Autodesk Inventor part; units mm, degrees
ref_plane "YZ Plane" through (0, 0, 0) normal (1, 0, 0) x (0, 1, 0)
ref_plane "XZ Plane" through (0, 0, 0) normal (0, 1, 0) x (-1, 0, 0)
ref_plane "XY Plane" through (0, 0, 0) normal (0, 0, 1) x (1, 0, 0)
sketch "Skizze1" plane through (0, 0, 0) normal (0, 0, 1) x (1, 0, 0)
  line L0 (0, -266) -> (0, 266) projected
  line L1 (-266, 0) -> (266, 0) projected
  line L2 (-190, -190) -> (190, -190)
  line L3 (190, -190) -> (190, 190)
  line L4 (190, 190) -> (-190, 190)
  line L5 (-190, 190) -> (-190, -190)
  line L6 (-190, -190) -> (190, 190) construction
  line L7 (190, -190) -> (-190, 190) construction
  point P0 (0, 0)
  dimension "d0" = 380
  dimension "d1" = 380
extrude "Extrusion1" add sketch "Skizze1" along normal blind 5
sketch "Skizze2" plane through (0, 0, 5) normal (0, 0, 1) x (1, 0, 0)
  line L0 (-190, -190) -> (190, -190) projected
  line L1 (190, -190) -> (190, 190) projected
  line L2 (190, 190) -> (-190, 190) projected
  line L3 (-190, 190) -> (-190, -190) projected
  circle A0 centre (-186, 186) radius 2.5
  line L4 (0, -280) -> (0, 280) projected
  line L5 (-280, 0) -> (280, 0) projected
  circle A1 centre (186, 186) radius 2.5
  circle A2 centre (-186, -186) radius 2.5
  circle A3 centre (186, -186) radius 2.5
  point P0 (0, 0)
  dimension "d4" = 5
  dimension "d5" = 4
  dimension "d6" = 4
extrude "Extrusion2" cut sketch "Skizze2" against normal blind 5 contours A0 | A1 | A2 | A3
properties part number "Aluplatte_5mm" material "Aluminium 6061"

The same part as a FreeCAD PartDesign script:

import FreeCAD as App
import Part
import Sketcher
from FreeCAD import Vector
Q = App.Units.Quantity


def add_polygon(sketch, points):
    """Adds a closed chain of lines whose ends are joined by coincident constraints."""
    first, n = sketch.GeometryCount, len(points)
    for a, b in zip(points, points[1:] + points[:1]):
        sketch.addGeometry(Part.LineSegment(App.Vector(*a, 0), App.Vector(*b, 0)), False)
    for i in range(n):
        sketch.addConstraint(Sketcher.Constraint("Coincident", first + i, 2, first + (i + 1) % n, 1))

doc = App.newDocument("Part")
params = doc.addObject("Spreadsheet::Sheet", "Params")
for row, (alias, value) in enumerate([
    ("sketch1_width", "380 mm"),
    ("pad1_length", "5 mm"),
    ("sketch2_diameter", "5 mm"),
    ("pocket1_length", "5 mm"),
], start=1):
    params.set(f"A{row}", alias)
    params.set(f"B{row}", "=" + value)
    params.setAlias(f"B{row}", alias)

body = doc.addObject("PartDesign::Body", "Body")

# Sketch on XY plane
sketch1 = body.newObject("Sketcher::SketchObject", "Sketch")
sketch1.AttachmentSupport = (doc.getObject("XY_Plane"), [""])
sketch1.MapMode = "FlatFace"
add_polygon(sketch1, [(-190, -190), (190, -190), (190, 190), (-190, 190)])  # lines 0-3
sketch1.addConstraint([
    Sketcher.Constraint("Horizontal", 0),
    Sketcher.Constraint("Vertical", 1),
    Sketcher.Constraint("Horizontal", 2),
    Sketcher.Constraint("Vertical", 3),
    Sketcher.Constraint("Symmetric", 0, 2, 2, 2, -1, 1),
    Sketcher.Constraint("Equal", 2, 1),
    Sketcher.Constraint("DistanceX", 0, 1, 0, 2, Q("380 mm")),
])
sketch1.setExpression("Constraints[10]", "Params.sketch1_width")
pad1 = body.newObject("PartDesign::Pad", "Pad")
pad1.Profile = sketch1
pad1.setExpression("Length", "Params.pad1_length")

# Sketch on XY plane
sketch2 = body.newObject("Sketcher::SketchObject", "Sketch001")
sketch2.AttachmentSupport = (doc.getObject("XY_Plane"), [""])
sketch2.MapMode = "FlatFace"
sketch2.AttachmentOffset = App.Placement(Vector(0, 0, 5), App.Rotation())
sketch2.addGeometry([
    Part.Circle(Vector(-186, 186, 0), Vector(0, 0, 1), 2.5),
    Part.Circle(Vector(186, 186, 0), Vector(0, 0, 1), 2.5),
    Part.Circle(Vector(-186, -186, 0), Vector(0, 0, 1), 2.5),
    Part.Circle(Vector(186, -186, 0), Vector(0, 0, 1), 2.5),
], False)
sketch2.addConstraint([
    Sketcher.Constraint("Equal", 0, 1),
    Sketcher.Constraint("Equal", 1, 2),
    Sketcher.Constraint("Equal", 2, 3),
    Sketcher.Constraint("Symmetric", 1, 3, 2, 3, -1, 1),
    Sketcher.Constraint("Symmetric", 0, 3, 3, 3, -1, 1),
    Sketcher.Constraint("Symmetric", 0, 3, 1, 3, -2),
    Sketcher.Constraint("Diameter", 0, Q("5 mm")),
    Sketcher.Constraint("DistanceX", 0, 3, -1, 1, Q("186 mm")),
    Sketcher.Constraint("DistanceY", -1, 1, 0, 3, Q("186 mm")),
])
sketch2.setExpression("Constraints[6]", "Params.sketch2_diameter")
pocket1 = body.newObject("PartDesign::Pocket", "Pocket")
pocket1.Profile = sketch2
pocket1.setExpression("Length", "Params.pocket1_length")

doc.recompute()
